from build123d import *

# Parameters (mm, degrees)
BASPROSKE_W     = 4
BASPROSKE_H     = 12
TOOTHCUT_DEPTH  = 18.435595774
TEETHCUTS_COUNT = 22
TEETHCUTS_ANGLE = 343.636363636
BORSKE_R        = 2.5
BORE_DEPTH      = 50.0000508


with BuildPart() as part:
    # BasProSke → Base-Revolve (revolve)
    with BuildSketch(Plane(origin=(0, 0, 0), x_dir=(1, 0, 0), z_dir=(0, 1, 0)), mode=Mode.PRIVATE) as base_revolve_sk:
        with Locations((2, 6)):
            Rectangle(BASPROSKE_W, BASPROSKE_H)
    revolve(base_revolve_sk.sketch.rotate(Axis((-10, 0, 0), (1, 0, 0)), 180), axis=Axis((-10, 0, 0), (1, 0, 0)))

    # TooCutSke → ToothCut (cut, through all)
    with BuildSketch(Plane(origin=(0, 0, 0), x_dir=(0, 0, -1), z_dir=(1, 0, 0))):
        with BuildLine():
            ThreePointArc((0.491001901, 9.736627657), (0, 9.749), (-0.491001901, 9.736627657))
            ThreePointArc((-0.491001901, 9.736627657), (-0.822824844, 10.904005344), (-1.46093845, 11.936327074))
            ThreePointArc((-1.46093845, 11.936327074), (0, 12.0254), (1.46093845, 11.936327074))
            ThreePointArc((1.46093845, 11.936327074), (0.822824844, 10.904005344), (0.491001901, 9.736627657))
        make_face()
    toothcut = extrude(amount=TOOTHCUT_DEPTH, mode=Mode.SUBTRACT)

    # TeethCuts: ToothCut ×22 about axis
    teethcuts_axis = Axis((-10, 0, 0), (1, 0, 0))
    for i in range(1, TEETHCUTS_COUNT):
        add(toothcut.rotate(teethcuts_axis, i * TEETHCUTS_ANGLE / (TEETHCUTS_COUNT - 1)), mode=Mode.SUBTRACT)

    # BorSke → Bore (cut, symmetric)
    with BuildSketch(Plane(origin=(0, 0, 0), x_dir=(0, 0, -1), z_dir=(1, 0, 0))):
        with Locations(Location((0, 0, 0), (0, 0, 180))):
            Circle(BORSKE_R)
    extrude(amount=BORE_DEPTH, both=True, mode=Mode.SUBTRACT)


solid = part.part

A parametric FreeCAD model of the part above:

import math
import FreeCAD as App
import Part
import Sketcher

V = App.Vector

doc = App.newDocument("Part")
body = doc.addObject("PartDesign::Body", "Body")

# Sketch on XZ plane
sketch1 = body.newObject("Sketcher::SketchObject", "Sketch")
sketch1.AttachmentSupport = (doc.getObject("XZ_Plane"), [""])
sketch1.MapMode = "FlatFace"
sketch1.addGeometry([
    Part.LineSegment(V(0, -12, 0), V(0, 0, 0)),
    Part.LineSegment(V(0, 0, 0), V(4, 0, 0)),
    Part.LineSegment(V(4, 0, 0), V(4, -12, 0)),
    Part.LineSegment(V(4, -12, 0), V(0, -12, 0)),
], False)
sketch1.addConstraint([
    Sketcher.Constraint("Coincident", 0, 2, 1, 1),
    Sketcher.Constraint("Coincident", 1, 2, 2, 1),
    Sketcher.Constraint("Coincident", 2, 2, 3, 1),
    Sketcher.Constraint("Coincident", 3, 2, 0, 1),
    Sketcher.Constraint("Vertical", 0),
    Sketcher.Constraint("Horizontal", 1),
    Sketcher.Constraint("Vertical", 2),
    Sketcher.Constraint("Horizontal", 3),
    Sketcher.Constraint("Coincident", 0, 2, -1, 1),
    Sketcher.Constraint("DistanceX", 1, 1, 1, 2, 4.0),
    Sketcher.Constraint("DistanceY", 0, 1, 0, 2, 12.0),
])
revolution = body.newObject("PartDesign::Revolution", "Revolution")
revolution.Profile = sketch1
revolution.ReferenceAxis = (sketch1, ["H_Axis"])
revolution.Angle = 360

# Sketch on YZ plane
sketch2 = body.newObject("Sketcher::SketchObject", "Sketch001")
sketch2.AttachmentSupport = (doc.getObject("YZ_Plane"), [""])
sketch2.MapMode = "FlatFace"
sketch2.addGeometry([
    Part.ArcOfCircle(Part.Circle(V(0, 0, 0), V(0, 0, 1), 9.749), math.radians(-2.886885), math.radians(2.886885)),
    Part.ArcOfCircle(Part.Circle(V(9.128784, -4.848814, 0), V(0, 0, 1), 4.4), math.radians(50.351348), math.radians(82.059402)),
    Part.ArcOfCircle(Part.Circle(V(0, 0, 0), V(0, 0, 1), 12.0254), math.radians(-6.977971), math.radians(6.977971)),
    Part.ArcOfCircle(Part.Circle(V(9.128784, 4.848814, 0), V(0, 0, 1), 4.4), math.radians(-82.059402), math.radians(-50.351348)),
], False)
sketch2.addConstraint([
    Sketcher.Constraint("Coincident", 0, 1, 1, 2),
    Sketcher.Constraint("Coincident", 1, 1, 2, 1),
    Sketcher.Constraint("Coincident", 2, 2, 3, 2),
    Sketcher.Constraint("Coincident", 3, 1, 0, 2),
    Sketcher.Constraint("Coincident", 0, 3, -1, 1),
    Sketcher.Constraint("Coincident", 2, 3, -1, 1),
    Sketcher.Constraint("Equal", 1, 3),
    Sketcher.Constraint("Symmetric", 1, 3, 3, 3, -1),
    Sketcher.Constraint("Radius", 1, 4.4),
    Sketcher.Constraint("Radius", 0, 9.749),
    Sketcher.Constraint("Radius", 2, 12.0254),
    Sketcher.Constraint("DistanceY", 0, 1, -1, 1, 0.491002),
    Sketcher.Constraint("DistanceX", 0, 1, 1, 1, 2.199699),
])
pocket1 = body.newObject("PartDesign::Pocket", "Pocket")
pocket1.Profile = sketch2
pocket1.Type = "ThroughAll"
pocket1.Reversed = True
doc.recompute()

polarpattern = body.newObject("PartDesign::PolarPattern", "PolarPattern")
polarpattern.Originals = [pocket1]
polarpattern.Axis = (doc.getObject("X_Axis"), [""])
polarpattern.Angle = 360
polarpattern.Occurrences = 22
body.Tip = polarpattern

# Sketch on YZ plane
sketch3 = body.newObject("Sketcher::SketchObject", "Sketch002")
sketch3.AttachmentSupport = (doc.getObject("YZ_Plane"), [""])
sketch3.MapMode = "FlatFace"
sketch3.addGeometry(Part.Circle(V(0, 0, 0), V(0, 0, 1), 2.5), False)
sketch3.addConstraint([
    Sketcher.Constraint("Coincident", 0, 3, -1, 1),
    Sketcher.Constraint("Diameter", 0, 5.0),
])
pocket2 = body.newObject("PartDesign::Pocket", "Pocket001")
pocket2.Profile = sketch3
pocket2.Length = 100.000102
pocket2.Midplane = True

doc.recompute()
